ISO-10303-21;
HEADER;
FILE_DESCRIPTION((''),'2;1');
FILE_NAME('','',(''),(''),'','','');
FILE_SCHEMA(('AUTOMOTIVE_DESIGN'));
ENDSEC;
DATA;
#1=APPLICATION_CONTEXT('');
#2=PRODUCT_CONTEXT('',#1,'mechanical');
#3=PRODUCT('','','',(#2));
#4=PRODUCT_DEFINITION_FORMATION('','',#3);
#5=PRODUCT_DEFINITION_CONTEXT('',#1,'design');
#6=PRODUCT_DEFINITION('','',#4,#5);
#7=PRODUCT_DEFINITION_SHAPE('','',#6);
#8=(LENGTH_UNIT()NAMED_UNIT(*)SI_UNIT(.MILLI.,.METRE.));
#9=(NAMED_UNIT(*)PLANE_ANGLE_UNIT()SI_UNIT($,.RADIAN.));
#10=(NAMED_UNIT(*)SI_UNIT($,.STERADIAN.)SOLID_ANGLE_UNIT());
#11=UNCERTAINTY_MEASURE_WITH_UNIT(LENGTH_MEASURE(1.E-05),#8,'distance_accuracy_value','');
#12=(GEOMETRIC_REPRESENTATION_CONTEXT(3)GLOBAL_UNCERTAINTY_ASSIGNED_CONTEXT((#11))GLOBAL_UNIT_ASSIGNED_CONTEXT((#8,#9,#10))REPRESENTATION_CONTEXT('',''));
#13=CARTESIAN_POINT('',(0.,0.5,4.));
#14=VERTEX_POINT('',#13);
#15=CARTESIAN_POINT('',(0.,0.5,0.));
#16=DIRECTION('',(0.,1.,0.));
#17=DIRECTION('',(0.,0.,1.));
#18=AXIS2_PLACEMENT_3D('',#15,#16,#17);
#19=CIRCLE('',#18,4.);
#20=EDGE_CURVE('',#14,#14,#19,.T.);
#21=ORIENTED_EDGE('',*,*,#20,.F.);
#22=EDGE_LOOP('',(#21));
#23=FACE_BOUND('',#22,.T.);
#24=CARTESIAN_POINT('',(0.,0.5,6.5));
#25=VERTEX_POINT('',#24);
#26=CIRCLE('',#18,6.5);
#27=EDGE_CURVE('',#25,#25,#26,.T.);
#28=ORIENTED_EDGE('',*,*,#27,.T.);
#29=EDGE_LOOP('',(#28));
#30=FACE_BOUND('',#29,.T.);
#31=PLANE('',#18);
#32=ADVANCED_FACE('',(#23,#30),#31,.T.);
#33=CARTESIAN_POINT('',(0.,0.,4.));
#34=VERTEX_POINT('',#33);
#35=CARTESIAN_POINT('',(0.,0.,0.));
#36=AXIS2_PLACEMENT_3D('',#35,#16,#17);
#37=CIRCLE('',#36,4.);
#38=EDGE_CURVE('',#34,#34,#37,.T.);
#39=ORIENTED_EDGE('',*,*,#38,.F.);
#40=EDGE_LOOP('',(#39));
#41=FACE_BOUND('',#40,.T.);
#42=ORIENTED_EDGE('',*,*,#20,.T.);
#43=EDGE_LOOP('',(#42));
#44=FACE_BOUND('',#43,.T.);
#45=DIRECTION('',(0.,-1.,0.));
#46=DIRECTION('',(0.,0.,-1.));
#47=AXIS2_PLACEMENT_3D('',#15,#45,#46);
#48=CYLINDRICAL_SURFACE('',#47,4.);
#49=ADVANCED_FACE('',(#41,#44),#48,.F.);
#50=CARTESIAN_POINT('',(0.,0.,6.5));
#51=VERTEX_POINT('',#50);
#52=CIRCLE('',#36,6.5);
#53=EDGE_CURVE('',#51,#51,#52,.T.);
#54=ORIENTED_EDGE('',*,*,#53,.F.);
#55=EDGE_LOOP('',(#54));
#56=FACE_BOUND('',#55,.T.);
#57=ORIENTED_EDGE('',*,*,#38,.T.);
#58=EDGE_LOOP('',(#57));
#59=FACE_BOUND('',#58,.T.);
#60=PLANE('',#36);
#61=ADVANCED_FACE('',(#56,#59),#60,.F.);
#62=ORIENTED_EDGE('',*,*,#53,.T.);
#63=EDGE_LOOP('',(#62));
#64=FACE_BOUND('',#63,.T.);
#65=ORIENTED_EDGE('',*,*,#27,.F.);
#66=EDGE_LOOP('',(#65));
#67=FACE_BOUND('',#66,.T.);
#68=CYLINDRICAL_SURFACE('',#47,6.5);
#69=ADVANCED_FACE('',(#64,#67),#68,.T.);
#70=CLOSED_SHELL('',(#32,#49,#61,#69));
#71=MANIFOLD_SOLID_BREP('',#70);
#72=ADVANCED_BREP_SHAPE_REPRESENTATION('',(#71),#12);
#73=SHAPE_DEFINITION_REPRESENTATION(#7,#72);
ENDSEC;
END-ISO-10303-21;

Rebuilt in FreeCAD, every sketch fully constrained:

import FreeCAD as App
import Part
import Sketcher
from FreeCAD import Vector

doc = App.newDocument("Part")
body = doc.addObject("PartDesign::Body", "Body")

# Sketch on XZ plane
sketch1 = doc.addObject("Sketcher::SketchObject", "Sketch")
body.addObject(sketch1)
sketch1.AttachmentSupport = (doc.XZ_Plane, [""])
sketch1.MapMode = "FlatFace"
sketch1.addGeometry(Part.Circle(Vector(0, 0, 0), Vector(0, 0, 1), 6.5), False)
sketch1.addGeometry(Part.Circle(Vector(0, 0, 0), Vector(0, 0, 1), 4), False)
sketch1.addConstraint(Sketcher.Constraint("Coincident", 0, 3, -1, 1))
sketch1.addConstraint(Sketcher.Constraint("Coincident", 1, 3, -1, 1))
sketch1.addConstraint(Sketcher.Constraint("Diameter", 0, 13.0))
sketch1.addConstraint(Sketcher.Constraint("Diameter", 1, 8.0))
pad1 = doc.addObject("PartDesign::Pad", "Pad")
body.addObject(pad1)
pad1.Profile = sketch1
pad1.Length = 0.5
pad1.Reversed = True

doc.recompute()
